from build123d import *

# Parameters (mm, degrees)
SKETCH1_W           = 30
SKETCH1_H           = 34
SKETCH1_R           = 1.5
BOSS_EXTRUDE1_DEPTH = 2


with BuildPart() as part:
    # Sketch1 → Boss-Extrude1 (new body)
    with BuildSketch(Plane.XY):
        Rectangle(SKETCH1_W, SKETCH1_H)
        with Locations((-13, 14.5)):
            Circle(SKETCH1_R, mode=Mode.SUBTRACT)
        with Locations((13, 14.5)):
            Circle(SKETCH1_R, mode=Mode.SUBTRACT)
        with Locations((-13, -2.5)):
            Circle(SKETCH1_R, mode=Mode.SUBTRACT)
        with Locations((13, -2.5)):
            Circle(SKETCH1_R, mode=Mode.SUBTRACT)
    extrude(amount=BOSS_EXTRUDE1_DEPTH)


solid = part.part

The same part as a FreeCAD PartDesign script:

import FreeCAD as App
import Part
import Sketcher
from FreeCAD import Vector
Q = App.Units.Quantity

doc = App.newDocument("Part")
body = doc.addObject("PartDesign::Body", "Body")

sketch1 = doc.addObject("Sketcher::SketchObject", "Sketch")
body.addObject(sketch1)
sketch1.AttachmentSupport = (doc.XY_Plane, [""])
sketch1.MapMode = "FlatFace"
sketch1.addGeometry([
    Part.LineSegment(Vector(-15, 17, 0), Vector(-15, -17, 0)),
    Part.LineSegment(Vector(-15, -17, 0), Vector(15, -17, 0)),
    Part.LineSegment(Vector(15, -17, 0), Vector(15, 17, 0)),
    Part.LineSegment(Vector(15, 17, 0), Vector(-15, 17, 0)),
    Part.Circle(Vector(-13, -2.5, 0), Vector(0, 0, 1), 1.5),
    Part.Circle(Vector(13, -2.5, 0), Vector(0, 0, 1), 1.5),
    Part.Circle(Vector(-13, 14.5, 0), Vector(0, 0, 1), 1.5),
    Part.Circle(Vector(13, 14.5, 0), Vector(0, 0, 1), 1.5),
], False)
sketch1.addConstraint([
    Sketcher.Constraint("Coincident", 0, 2, 1, 1),
    Sketcher.Constraint("Coincident", 1, 2, 2, 1),
    Sketcher.Constraint("Coincident", 2, 2, 3, 1),
    Sketcher.Constraint("Coincident", 3, 2, 0, 1),
    Sketcher.Constraint("Vertical", 0),
    Sketcher.Constraint("Horizontal", 1),
    Sketcher.Constraint("Vertical", 2),
    Sketcher.Constraint("Horizontal", 3),
    Sketcher.Constraint("Equal", 4, 5),
    Sketcher.Constraint("Equal", 5, 6),
    Sketcher.Constraint("Equal", 6, 7),
    Sketcher.Constraint("Symmetric", 0, 2, 2, 2, -1, 1),
    Sketcher.Constraint("Symmetric", 4, 3, 5, 3, -2),
    Sketcher.Constraint("Symmetric", 6, 3, 7, 3, -2),
    Sketcher.Constraint("Vertical", 4, 3, 6, 3),
    Sketcher.Constraint("Diameter", 4, Q("3 mm")),
    Sketcher.Constraint("DistanceX", 1, 1, 1, 2, Q("30 mm")),
    Sketcher.Constraint("DistanceY", 0, 2, 0, 1, Q("34 mm")),
    Sketcher.Constraint("DistanceX", 4, 3, -1, 1, Q("13 mm")),
    Sketcher.Constraint("DistanceY", 4, 3, 6, 3, Q("17 mm")),
    Sketcher.Constraint("DistanceY", 4, 3, -1, 1, Q("2.5 mm")),
])
pad1 = doc.addObject("PartDesign::Pad", "Pad")
body.addObject(pad1)
pad1.Profile = sketch1
pad1.Length = 2

doc.recompute()
